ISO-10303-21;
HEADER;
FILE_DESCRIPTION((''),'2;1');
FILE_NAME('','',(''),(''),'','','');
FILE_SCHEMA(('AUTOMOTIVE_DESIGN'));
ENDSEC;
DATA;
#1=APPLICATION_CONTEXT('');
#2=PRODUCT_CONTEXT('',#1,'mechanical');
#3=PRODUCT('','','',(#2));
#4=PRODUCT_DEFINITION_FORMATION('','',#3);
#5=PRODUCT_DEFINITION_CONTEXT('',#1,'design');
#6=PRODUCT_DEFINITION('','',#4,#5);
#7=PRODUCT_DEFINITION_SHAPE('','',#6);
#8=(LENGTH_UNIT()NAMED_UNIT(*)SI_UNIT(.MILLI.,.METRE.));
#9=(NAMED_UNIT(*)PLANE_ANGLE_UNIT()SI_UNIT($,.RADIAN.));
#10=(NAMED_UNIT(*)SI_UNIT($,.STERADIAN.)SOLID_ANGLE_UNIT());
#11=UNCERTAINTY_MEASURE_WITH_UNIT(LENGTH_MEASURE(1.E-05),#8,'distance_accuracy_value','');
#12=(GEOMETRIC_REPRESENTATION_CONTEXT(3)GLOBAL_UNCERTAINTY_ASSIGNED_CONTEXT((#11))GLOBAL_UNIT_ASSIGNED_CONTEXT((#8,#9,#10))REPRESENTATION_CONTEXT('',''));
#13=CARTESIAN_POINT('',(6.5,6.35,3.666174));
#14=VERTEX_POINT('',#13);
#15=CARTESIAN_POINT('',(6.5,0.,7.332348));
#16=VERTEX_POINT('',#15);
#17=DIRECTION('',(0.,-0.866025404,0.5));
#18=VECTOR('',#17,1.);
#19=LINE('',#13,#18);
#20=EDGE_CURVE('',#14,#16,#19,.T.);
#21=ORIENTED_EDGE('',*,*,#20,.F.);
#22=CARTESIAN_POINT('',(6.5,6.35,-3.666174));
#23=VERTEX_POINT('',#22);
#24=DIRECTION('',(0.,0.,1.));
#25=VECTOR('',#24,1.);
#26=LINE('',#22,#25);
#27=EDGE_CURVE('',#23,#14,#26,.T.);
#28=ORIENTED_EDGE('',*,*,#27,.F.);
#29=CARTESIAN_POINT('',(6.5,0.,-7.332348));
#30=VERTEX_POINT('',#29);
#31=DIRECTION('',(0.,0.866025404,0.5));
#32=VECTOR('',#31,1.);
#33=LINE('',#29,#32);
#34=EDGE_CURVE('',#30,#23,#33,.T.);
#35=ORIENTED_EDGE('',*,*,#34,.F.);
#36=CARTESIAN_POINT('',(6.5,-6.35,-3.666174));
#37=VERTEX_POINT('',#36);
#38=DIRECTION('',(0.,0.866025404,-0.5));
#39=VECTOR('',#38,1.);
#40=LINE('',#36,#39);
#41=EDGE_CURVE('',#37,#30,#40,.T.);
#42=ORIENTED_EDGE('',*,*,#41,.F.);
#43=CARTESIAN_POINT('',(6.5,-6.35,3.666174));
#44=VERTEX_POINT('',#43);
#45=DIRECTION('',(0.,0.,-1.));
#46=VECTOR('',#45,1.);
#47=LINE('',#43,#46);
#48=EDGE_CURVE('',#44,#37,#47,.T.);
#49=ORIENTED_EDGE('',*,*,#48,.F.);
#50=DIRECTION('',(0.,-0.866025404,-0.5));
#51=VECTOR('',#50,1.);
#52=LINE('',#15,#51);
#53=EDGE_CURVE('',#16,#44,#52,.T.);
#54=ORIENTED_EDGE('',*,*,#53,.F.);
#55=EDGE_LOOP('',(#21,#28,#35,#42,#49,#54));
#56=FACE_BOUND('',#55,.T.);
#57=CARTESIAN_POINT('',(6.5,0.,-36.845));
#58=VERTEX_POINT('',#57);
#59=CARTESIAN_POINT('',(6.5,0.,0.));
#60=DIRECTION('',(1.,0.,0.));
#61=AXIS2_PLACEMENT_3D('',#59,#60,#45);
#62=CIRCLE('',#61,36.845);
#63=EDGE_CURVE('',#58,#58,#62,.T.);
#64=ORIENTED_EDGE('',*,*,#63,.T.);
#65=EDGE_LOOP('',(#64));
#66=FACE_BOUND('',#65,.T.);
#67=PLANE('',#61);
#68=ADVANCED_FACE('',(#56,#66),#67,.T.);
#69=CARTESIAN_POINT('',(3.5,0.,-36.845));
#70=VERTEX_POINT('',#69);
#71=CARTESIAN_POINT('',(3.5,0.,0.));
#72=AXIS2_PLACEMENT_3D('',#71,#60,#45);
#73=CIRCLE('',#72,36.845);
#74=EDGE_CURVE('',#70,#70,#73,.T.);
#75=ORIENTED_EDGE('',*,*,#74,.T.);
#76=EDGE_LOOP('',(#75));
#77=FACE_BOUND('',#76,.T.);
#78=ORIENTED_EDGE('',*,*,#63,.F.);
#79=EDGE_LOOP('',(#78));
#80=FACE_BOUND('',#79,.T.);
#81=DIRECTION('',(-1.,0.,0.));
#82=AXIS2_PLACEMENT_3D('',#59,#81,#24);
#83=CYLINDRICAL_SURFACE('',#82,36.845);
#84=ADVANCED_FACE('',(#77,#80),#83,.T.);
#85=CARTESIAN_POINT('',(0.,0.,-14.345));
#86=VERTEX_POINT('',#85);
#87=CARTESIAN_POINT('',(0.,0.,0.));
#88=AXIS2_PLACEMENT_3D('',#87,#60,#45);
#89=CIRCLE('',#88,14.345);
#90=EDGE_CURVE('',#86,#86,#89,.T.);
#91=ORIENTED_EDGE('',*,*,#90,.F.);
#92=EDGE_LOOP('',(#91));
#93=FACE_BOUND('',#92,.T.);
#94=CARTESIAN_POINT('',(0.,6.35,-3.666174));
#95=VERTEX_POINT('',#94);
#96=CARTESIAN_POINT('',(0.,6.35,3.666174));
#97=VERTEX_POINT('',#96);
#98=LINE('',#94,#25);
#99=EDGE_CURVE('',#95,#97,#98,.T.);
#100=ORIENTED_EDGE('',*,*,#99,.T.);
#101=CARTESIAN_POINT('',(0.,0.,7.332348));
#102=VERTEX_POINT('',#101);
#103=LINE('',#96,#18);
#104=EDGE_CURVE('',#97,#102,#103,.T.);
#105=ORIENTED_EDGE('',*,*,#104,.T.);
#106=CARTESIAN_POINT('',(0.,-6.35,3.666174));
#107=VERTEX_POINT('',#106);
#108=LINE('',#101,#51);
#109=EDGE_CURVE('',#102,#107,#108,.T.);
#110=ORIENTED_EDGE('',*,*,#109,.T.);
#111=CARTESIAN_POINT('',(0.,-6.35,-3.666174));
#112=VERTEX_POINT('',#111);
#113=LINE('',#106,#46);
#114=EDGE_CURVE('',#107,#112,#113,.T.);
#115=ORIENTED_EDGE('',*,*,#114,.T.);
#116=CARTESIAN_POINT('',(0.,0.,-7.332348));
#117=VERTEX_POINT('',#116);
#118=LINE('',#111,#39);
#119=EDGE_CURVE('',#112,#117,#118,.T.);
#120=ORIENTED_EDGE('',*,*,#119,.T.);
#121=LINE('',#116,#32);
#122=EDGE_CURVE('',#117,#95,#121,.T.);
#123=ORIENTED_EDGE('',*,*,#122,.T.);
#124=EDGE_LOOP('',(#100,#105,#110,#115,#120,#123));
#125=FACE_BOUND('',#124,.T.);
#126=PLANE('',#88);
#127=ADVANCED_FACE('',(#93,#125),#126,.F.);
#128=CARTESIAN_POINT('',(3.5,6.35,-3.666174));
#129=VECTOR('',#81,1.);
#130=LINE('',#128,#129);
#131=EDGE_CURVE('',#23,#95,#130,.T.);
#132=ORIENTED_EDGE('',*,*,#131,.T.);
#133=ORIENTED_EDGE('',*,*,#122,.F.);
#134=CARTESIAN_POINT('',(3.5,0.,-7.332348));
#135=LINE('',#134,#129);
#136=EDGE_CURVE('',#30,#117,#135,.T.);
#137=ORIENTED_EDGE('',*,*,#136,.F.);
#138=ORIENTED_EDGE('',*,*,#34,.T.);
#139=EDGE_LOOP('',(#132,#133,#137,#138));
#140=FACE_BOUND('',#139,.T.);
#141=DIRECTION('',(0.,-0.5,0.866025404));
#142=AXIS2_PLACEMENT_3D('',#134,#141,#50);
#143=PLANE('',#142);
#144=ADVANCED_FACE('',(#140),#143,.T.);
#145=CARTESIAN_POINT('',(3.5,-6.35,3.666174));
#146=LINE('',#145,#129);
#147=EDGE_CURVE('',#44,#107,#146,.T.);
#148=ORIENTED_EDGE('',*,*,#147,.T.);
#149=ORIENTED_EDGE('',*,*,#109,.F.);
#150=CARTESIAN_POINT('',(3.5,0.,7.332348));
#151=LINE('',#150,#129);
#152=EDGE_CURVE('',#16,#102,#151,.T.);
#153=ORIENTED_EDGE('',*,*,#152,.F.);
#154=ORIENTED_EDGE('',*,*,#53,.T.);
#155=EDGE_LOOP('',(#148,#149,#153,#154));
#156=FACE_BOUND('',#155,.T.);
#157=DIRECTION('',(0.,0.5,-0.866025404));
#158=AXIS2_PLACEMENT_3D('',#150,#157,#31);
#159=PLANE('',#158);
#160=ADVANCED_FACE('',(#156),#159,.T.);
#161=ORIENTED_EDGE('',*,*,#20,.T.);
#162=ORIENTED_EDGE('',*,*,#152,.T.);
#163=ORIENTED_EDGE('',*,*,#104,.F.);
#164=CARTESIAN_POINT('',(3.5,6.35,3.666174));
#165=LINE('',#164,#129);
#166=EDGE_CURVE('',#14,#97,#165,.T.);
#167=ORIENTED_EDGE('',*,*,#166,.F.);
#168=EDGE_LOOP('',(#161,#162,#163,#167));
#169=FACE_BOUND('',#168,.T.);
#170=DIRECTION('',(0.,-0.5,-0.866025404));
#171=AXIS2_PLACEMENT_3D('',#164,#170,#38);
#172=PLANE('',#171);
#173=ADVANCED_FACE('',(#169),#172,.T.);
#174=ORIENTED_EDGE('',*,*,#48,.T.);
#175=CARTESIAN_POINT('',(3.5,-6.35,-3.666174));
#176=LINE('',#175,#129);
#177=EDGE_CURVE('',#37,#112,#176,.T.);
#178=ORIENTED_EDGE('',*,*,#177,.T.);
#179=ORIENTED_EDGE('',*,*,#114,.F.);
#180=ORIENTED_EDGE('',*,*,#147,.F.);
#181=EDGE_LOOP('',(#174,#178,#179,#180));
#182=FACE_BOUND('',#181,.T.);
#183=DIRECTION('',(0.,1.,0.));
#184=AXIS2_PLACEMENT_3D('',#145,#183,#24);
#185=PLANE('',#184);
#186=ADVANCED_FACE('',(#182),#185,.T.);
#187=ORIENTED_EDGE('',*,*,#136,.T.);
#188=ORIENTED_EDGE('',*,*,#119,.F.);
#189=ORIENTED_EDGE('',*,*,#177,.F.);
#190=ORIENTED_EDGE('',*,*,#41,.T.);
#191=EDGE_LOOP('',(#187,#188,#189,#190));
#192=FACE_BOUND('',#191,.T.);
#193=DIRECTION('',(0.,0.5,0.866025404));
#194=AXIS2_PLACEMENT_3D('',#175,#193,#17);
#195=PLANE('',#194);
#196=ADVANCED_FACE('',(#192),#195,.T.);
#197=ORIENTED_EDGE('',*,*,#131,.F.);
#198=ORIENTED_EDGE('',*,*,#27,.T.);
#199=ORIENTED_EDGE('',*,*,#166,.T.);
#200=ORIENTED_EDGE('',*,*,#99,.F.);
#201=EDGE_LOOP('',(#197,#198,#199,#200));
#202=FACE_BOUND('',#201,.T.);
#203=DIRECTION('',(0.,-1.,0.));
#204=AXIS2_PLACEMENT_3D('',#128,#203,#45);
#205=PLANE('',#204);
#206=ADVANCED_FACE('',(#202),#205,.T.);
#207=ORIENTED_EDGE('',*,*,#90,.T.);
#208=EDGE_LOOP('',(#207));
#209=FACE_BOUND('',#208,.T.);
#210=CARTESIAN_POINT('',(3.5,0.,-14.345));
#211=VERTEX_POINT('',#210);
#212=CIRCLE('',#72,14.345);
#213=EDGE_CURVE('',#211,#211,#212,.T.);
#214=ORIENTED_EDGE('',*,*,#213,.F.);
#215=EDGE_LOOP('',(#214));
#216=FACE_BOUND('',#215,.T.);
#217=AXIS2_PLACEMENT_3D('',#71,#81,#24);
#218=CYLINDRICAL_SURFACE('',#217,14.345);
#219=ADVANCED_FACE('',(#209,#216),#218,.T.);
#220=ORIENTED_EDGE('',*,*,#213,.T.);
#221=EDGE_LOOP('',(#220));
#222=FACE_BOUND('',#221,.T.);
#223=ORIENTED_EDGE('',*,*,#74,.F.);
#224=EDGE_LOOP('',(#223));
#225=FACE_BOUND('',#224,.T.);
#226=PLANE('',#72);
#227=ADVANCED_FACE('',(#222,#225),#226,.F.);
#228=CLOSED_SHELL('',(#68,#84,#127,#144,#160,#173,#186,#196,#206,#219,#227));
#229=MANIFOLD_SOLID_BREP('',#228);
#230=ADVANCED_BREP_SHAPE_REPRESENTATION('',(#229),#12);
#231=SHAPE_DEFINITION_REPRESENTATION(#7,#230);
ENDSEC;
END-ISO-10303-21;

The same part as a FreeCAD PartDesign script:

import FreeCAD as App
import Part
import Sketcher
Q = App.Units.Quantity

doc = App.newDocument("Part")
body = doc.addObject("PartDesign::Body", "Body")

sketch1 = body.newObject("Sketcher::SketchObject", "Sketch")
sketch1.AttachmentSupport = (doc.getObject("YZ_Plane"), [""])
sketch1.MapMode = "FlatFace"
sketch1.addGeometry(Part.Circle(App.Vector(0, 0, 0), App.Vector(0, 0, 1), 14), False)
sketch1.addGeometry(Part.LineSegment(App.Vector(6, -4, 0), App.Vector(0, -7, 0)), False)
sketch1.addGeometry(Part.LineSegment(App.Vector(0, -7, 0), App.Vector(-6, -4, 0)), False)
sketch1.addGeometry(Part.LineSegment(App.Vector(-6, -4, 0), App.Vector(-6, 4, 0)), False)
sketch1.addGeometry(Part.LineSegment(App.Vector(-6, 4, 0), App.Vector(0, 7, 0)), False)
sketch1.addGeometry(Part.LineSegment(App.Vector(0, 7, 0), App.Vector(6, 4, 0)), False)
sketch1.addGeometry(Part.LineSegment(App.Vector(6, 4, 0), App.Vector(6, -4, 0)), False)
sketch1.addConstraint(Sketcher.Constraint("Coincident", 1, 2, 2, 1))
sketch1.addConstraint(Sketcher.Constraint("Coincident", 2, 2, 3, 1))
sketch1.addConstraint(Sketcher.Constraint("Coincident", 3, 2, 4, 1))
sketch1.addConstraint(Sketcher.Constraint("Coincident", 4, 2, 5, 1))
sketch1.addConstraint(Sketcher.Constraint("Coincident", 5, 2, 6, 1))
sketch1.addConstraint(Sketcher.Constraint("Coincident", 6, 2, 1, 1))
sketch1.addConstraint(Sketcher.Constraint("Vertical", 3))
sketch1.addConstraint(Sketcher.Constraint("Vertical", 6))
sketch1.addConstraint(Sketcher.Constraint("Coincident", 0, 3, -1, 1))
sketch1.addConstraint(Sketcher.Constraint("Symmetric", 1, 2, 4, 2, -1, 1))
sketch1.addConstraint(Sketcher.Constraint("Symmetric", 2, 2, 5, 2, -1, 1))
sketch1.addConstraint(Sketcher.Constraint("PointOnObject", 1, 2, -2))
sketch1.addConstraint(Sketcher.Constraint("Parallel", 1, 4))
sketch1.addConstraint(Sketcher.Constraint("Horizontal", 3, 2, 5, 2))
sketch1.addConstraint(Sketcher.Constraint("Diameter", 0, 28.69))
sketch1.addConstraint(Sketcher.Constraint("Angle", 1, Q("-150 deg")))
sketch1.addConstraint(Sketcher.Constraint("DistanceX", 3, 2, 5, 2, 12.7))
sketch1.addConstraint(Sketcher.Constraint("DistanceY", 3, 1, 3, 2, 7.332348))
pad1 = body.newObject("PartDesign::Pad", "Pad")
pad1.Profile = sketch1
pad1.Length = 3.5

sketch2 = body.newObject("Sketcher::SketchObject", "Sketch001")
sketch2.AttachmentSupport = (doc.getObject("YZ_Plane"), [""])
sketch2.MapMode = "FlatFace"
sketch2.AttachmentOffset = App.Placement(App.Vector(0, 0, 3.5), App.Rotation())
sketch2.addGeometry(Part.Circle(App.Vector(0, 0, 0), App.Vector(0, 0, 1), 37), False)
sketch2.addGeometry(Part.LineSegment(App.Vector(6, -4, 0), App.Vector(0, -7, 0)), False)
sketch2.addGeometry(Part.LineSegment(App.Vector(0, -7, 0), App.Vector(-6, -4, 0)), False)
sketch2.addGeometry(Part.LineSegment(App.Vector(-6, -4, 0), App.Vector(-6, 4, 0)), False)
sketch2.addGeometry(Part.LineSegment(App.Vector(-6, 4, 0), App.Vector(0, 7, 0)), False)
sketch2.addGeometry(Part.LineSegment(App.Vector(0, 7, 0), App.Vector(6, 4, 0)), False)
sketch2.addGeometry(Part.LineSegment(App.Vector(6, 4, 0), App.Vector(6, -4, 0)), False)
sketch2.addConstraint(Sketcher.Constraint("Coincident", 1, 2, 2, 1))
sketch2.addConstraint(Sketcher.Constraint("Coincident", 2, 2, 3, 1))
sketch2.addConstraint(Sketcher.Constraint("Coincident", 3, 2, 4, 1))
sketch2.addConstraint(Sketcher.Constraint("Coincident", 4, 2, 5, 1))
sketch2.addConstraint(Sketcher.Constraint("Coincident", 5, 2, 6, 1))
sketch2.addConstraint(Sketcher.Constraint("Coincident", 6, 2, 1, 1))
sketch2.addConstraint(Sketcher.Constraint("Vertical", 3))
sketch2.addConstraint(Sketcher.Constraint("Vertical", 6))
sketch2.addConstraint(Sketcher.Constraint("Coincident", 0, 3, -1, 1))
sketch2.addConstraint(Sketcher.Constraint("Symmetric", 1, 2, 4, 2, -1, 1))
sketch2.addConstraint(Sketcher.Constraint("Symmetric", 2, 2, 5, 2, -1, 1))
sketch2.addConstraint(Sketcher.Constraint("PointOnObject", 1, 2, -2))
sketch2.addConstraint(Sketcher.Constraint("Parallel", 1, 4))
sketch2.addConstraint(Sketcher.Constraint("Horizontal", 3, 2, 5, 2))
sketch2.addConstraint(Sketcher.Constraint("Diameter", 0, 73.69))
sketch2.addConstraint(Sketcher.Constraint("Angle", 1, Q("-150 deg")))
sketch2.addConstraint(Sketcher.Constraint("DistanceX", 3, 2, 5, 2, 12.7))
sketch2.addConstraint(Sketcher.Constraint("DistanceY", 3, 1, 3, 2, 7.332348))
pad2 = body.newObject("PartDesign::Pad", "Pad001")
pad2.Profile = sketch2
pad2.Length = 3

doc.recompute()
